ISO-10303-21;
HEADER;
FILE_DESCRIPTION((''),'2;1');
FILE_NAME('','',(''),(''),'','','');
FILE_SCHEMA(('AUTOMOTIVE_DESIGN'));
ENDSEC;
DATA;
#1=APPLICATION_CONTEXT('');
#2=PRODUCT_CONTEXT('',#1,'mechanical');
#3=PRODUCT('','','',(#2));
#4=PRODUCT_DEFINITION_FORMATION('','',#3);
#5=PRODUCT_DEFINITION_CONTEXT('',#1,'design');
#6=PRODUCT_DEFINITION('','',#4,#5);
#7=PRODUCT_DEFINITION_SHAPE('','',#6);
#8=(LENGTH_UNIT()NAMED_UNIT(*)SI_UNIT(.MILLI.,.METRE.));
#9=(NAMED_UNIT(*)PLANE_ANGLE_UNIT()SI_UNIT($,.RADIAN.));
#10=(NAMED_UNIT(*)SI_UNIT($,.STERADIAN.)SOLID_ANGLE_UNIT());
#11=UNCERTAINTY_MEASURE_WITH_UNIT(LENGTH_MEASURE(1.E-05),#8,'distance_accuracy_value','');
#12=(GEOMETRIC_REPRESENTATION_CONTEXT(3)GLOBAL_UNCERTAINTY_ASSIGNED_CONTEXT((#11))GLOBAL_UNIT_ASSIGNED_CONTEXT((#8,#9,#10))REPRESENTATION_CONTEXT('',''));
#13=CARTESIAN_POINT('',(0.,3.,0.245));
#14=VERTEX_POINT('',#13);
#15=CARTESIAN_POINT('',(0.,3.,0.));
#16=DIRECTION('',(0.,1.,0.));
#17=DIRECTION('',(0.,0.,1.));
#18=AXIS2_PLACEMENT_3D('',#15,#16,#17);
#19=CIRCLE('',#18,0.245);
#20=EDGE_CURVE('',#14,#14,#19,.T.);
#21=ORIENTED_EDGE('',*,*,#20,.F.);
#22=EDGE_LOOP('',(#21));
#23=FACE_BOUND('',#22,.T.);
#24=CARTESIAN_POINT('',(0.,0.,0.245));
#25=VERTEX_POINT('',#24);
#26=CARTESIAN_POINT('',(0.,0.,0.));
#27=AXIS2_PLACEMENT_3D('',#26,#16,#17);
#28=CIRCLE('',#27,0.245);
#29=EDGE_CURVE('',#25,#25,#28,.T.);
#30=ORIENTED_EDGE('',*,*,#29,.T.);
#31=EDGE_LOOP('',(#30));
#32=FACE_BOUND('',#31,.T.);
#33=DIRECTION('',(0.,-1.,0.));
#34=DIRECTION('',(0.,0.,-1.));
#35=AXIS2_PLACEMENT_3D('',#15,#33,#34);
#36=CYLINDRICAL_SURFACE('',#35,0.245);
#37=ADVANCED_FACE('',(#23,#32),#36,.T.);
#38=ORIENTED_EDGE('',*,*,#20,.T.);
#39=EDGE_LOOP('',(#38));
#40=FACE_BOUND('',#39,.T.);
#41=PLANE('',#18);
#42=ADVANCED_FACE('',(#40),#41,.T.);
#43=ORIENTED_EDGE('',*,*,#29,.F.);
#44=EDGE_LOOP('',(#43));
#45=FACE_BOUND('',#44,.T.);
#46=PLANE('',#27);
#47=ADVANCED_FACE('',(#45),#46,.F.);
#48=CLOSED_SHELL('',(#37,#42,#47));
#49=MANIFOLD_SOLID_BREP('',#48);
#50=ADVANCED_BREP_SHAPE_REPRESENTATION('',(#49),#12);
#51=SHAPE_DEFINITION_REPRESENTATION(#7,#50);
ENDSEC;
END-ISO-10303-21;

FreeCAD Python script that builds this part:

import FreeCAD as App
import Part
import Sketcher
from FreeCAD import Vector

doc = App.newDocument("Part")
body = doc.addObject("PartDesign::Body", "Body")

sketch1 = body.newObject("Sketcher::SketchObject", "Sketch")
sketch1.AttachmentSupport = (doc.getObject("XZ_Plane"), [""])
sketch1.MapMode = "FlatFace"
sketch1.addGeometry(Part.Circle(Vector(0, 0, 0), Vector(0, 0, 1), 0.24), False)
sketch1.addConstraint(Sketcher.Constraint("Coincident", 0, 3, -1, 1))
sketch1.addConstraint(Sketcher.Constraint("Diameter", 0, 0.49))
pad1 = body.newObject("PartDesign::Pad", "Pad")
pad1.Profile = sketch1
pad1.Length = 3
pad1.Reversed = True

doc.recompute()
